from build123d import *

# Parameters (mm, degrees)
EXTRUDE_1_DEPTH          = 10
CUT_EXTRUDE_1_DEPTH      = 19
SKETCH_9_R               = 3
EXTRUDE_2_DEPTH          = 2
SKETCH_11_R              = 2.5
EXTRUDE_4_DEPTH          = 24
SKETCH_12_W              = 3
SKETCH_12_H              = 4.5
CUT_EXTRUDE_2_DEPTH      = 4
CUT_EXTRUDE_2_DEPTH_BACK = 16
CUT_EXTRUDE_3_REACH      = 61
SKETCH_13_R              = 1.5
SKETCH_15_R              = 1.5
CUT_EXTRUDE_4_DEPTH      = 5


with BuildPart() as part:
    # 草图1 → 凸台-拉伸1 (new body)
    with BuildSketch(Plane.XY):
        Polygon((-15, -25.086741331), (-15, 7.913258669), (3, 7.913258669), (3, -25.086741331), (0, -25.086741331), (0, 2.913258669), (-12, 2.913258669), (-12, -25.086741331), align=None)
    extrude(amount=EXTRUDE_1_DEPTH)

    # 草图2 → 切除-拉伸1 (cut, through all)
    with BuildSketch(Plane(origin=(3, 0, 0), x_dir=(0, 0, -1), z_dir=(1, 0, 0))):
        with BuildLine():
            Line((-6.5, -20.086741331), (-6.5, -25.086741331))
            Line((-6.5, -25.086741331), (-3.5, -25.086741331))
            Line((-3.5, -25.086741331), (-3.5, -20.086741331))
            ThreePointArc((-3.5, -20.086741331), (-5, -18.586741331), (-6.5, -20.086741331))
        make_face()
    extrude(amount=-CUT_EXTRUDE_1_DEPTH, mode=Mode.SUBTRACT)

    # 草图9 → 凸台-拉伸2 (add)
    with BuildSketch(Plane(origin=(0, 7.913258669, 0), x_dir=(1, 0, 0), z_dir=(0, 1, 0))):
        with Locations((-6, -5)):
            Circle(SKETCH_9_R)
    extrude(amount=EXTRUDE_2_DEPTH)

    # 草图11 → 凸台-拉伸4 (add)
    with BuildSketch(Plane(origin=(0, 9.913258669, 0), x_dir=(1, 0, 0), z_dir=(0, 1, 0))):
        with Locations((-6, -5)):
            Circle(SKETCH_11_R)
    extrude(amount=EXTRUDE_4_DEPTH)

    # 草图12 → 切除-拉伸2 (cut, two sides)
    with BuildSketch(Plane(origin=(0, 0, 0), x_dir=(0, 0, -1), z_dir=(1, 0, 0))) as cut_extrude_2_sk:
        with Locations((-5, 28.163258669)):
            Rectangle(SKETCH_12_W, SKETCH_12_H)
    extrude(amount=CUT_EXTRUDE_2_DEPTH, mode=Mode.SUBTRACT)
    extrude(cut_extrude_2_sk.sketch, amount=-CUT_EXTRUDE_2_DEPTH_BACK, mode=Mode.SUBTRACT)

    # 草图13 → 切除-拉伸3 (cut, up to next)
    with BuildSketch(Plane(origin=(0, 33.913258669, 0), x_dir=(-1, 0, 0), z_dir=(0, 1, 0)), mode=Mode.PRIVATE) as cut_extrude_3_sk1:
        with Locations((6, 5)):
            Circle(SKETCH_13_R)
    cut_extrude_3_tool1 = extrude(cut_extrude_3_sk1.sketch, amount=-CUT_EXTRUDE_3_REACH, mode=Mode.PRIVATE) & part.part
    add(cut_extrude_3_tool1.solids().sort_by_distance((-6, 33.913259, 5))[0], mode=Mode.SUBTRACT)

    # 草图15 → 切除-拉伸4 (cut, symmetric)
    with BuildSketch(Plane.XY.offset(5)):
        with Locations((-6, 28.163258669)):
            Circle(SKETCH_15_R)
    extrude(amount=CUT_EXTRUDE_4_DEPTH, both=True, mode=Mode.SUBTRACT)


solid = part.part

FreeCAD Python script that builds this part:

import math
import FreeCAD as App
import Part
import Sketcher

V = App.Vector
Q = App.Units.Quantity

doc = App.newDocument("Part")
body = doc.addObject("PartDesign::Body", "Body")

# Sketch on XY plane
sketch1 = doc.addObject("Sketcher::SketchObject", "Sketch")
body.addObject(sketch1)
sketch1.AttachmentSupport = (doc.XY_Plane, [""])
sketch1.MapMode = "FlatFace"
sketch1.addGeometry(Part.LineSegment(V(-15, 7.9, 0), V(-15, -25.1, 0)), False)
sketch1.addGeometry(Part.LineSegment(V(-15, -25.1, 0), V(-12, -25.1, 0)), False)
sketch1.addGeometry(Part.LineSegment(V(-12, -25.1, 0), V(-12, 2.9, 0)), False)
sketch1.addGeometry(Part.LineSegment(V(-12, 2.9, 0), V(0, 2.9, 0)), False)
sketch1.addGeometry(Part.LineSegment(V(0, 2.9, 0), V(0, -25.1, 0)), False)
sketch1.addGeometry(Part.LineSegment(V(0, -25.1, 0), V(3, -25.1, 0)), False)
sketch1.addGeometry(Part.LineSegment(V(3, -25.1, 0), V(3, 7.9, 0)), False)
sketch1.addGeometry(Part.LineSegment(V(3, 7.9, 0), V(-15, 7.9, 0)), False)
sketch1.addConstraint(Sketcher.Constraint("Coincident", 0, 2, 1, 1))
sketch1.addConstraint(Sketcher.Constraint("Coincident", 1, 2, 2, 1))
sketch1.addConstraint(Sketcher.Constraint("Coincident", 2, 2, 3, 1))
sketch1.addConstraint(Sketcher.Constraint("Coincident", 3, 2, 4, 1))
sketch1.addConstraint(Sketcher.Constraint("Coincident", 4, 2, 5, 1))
sketch1.addConstraint(Sketcher.Constraint("Coincident", 5, 2, 6, 1))
sketch1.addConstraint(Sketcher.Constraint("Coincident", 6, 2, 7, 1))
sketch1.addConstraint(Sketcher.Constraint("Coincident", 7, 2, 0, 1))
sketch1.addConstraint(Sketcher.Constraint("Vertical", 0))
sketch1.addConstraint(Sketcher.Constraint("Horizontal", 1))
sketch1.addConstraint(Sketcher.Constraint("Vertical", 2))
sketch1.addConstraint(Sketcher.Constraint("Horizontal", 3))
sketch1.addConstraint(Sketcher.Constraint("Vertical", 4))
sketch1.addConstraint(Sketcher.Constraint("Horizontal", 5))
sketch1.addConstraint(Sketcher.Constraint("Vertical", 6))
sketch1.addConstraint(Sketcher.Constraint("Horizontal", 7))
sketch1.addConstraint(Sketcher.Constraint("PointOnObject", 3, 2, -2))
sketch1.addConstraint(Sketcher.Constraint("Horizontal", 1, 2, 4, 2))
sketch1.addConstraint(Sketcher.Constraint("Equal", 1, 5))
sketch1.addConstraint(Sketcher.Constraint("DistanceX", 1, 1, 1, 2, Q("3 mm")))
sketch1.addConstraint(Sketcher.Constraint("DistanceX", 3, 1, 3, 2, Q("12 mm")))
sketch1.addConstraint(Sketcher.Constraint("DistanceY", 0, 2, 0, 1, Q("33 mm")))
sketch1.addConstraint(Sketcher.Constraint("DistanceY", 2, 1, 2, 2, Q("28 mm")))
sketch1.addConstraint(Sketcher.Constraint("DistanceY", 0, 2, -1, 1, Q("25.086741 mm")))
pad1 = doc.addObject("PartDesign::Pad", "Pad")
body.addObject(pad1)
pad1.Profile = sketch1
pad1.Length = 10

# Sketch on YZ plane
sketch2 = doc.addObject("Sketcher::SketchObject", "Sketch001")
body.addObject(sketch2)
sketch2.AttachmentSupport = (doc.YZ_Plane, [""])
sketch2.MapMode = "FlatFace"
sketch2.AttachmentOffset = App.Placement(V(0, 0, 3), App.Rotation())
sketch2.addGeometry(Part.LineSegment(V(-20.1, 6.5, 0), V(-25.1, 6.5, 0)), False)
sketch2.addGeometry(Part.LineSegment(V(-25.1, 6.5, 0), V(-25.1, 3.5, 0)), False)
sketch2.addGeometry(Part.LineSegment(V(-25.1, 3.5, 0), V(-20.1, 3.5, 0)), False)
sketch2.addGeometry(Part.ArcOfCircle(Part.Circle(V(-20.1, 5, 0), V(0, 0, 1), 1.5), math.radians(-90), math.radians(90)), False)
sketch2.addConstraint(Sketcher.Constraint("Coincident", 0, 2, 1, 1))
sketch2.addConstraint(Sketcher.Constraint("Coincident", 1, 2, 2, 1))
sketch2.addConstraint(Sketcher.Constraint("Tangent", 2, 2, 3, 1))
sketch2.addConstraint(Sketcher.Constraint("Tangent", 3, 2, 0, 1))
sketch2.addConstraint(Sketcher.Constraint("Horizontal", 0))
sketch2.addConstraint(Sketcher.Constraint("Vertical", 1))
sketch2.addConstraint(Sketcher.Constraint("Horizontal", 2))
sketch2.addConstraint(Sketcher.Constraint("Radius", 3, Q("1.5 mm")))
sketch2.addConstraint(Sketcher.Constraint("DistanceX", 0, 2, 0, 1, Q("5 mm")))
sketch2.addConstraint(Sketcher.Constraint("DistanceY", -1, 1, 3, 3, Q("5 mm")))
sketch2.addConstraint(Sketcher.Constraint("DistanceX", 3, 3, -1, 1, Q("20.086741 mm")))
pocket1 = doc.addObject("PartDesign::Pocket", "Pocket")
body.addObject(pocket1)
pocket1.Profile = sketch2
pocket1.Type = "ThroughAll"

# Sketch on XZ plane
sketch3 = doc.addObject("Sketcher::SketchObject", "Sketch002")
body.addObject(sketch3)
sketch3.AttachmentSupport = (doc.XZ_Plane, [""])
sketch3.MapMode = "FlatFace"
sketch3.AttachmentOffset = App.Placement(V(0, 0, -7.913259), App.Rotation())
sketch3.addGeometry(Part.Circle(V(-6, 5, 0), V(0, 0, 1), 3), False)
sketch3.addConstraint(Sketcher.Constraint("Diameter", 0, Q("6 mm")))
sketch3.addConstraint(Sketcher.Constraint("DistanceX", 0, 3, -1, 1, Q("6 mm")))
sketch3.addConstraint(Sketcher.Constraint("DistanceY", -1, 1, 0, 3, Q("5 mm")))
pad2 = doc.addObject("PartDesign::Pad", "Pad001")
body.addObject(pad2)
pad2.Profile = sketch3
pad2.Length = 2
pad2.Reversed = True

# Sketch on XZ plane
sketch4 = doc.addObject("Sketcher::SketchObject", "Sketch003")
body.addObject(sketch4)
sketch4.AttachmentSupport = (doc.XZ_Plane, [""])
sketch4.MapMode = "FlatFace"
sketch4.AttachmentOffset = App.Placement(V(0, 0, -9.913259), App.Rotation())
sketch4.addGeometry(Part.Circle(V(-6, 5, 0), V(0, 0, 1), 2.5), False)
sketch4.addConstraint(Sketcher.Constraint("Diameter", 0, Q("5 mm")))
sketch4.addConstraint(Sketcher.Constraint("DistanceX", 0, 3, -1, 1, Q("6 mm")))
sketch4.addConstraint(Sketcher.Constraint("DistanceY", -1, 1, 0, 3, Q("5 mm")))
pad3 = doc.addObject("PartDesign::Pad", "Pad002")
body.addObject(pad3)
pad3.Profile = sketch4
pad3.Length = 24
pad3.Reversed = True

# Sketch on YZ plane
sketch5 = doc.addObject("Sketcher::SketchObject", "Sketch004")
body.addObject(sketch5)
sketch5.AttachmentSupport = (doc.YZ_Plane, [""])
sketch5.MapMode = "FlatFace"
sketch5.addGeometry(Part.LineSegment(V(30.4, 6.5, 0), V(25.9, 6.5, 0)), False)
sketch5.addGeometry(Part.LineSegment(V(25.9, 6.5, 0), V(25.9, 3.5, 0)), False)
sketch5.addGeometry(Part.LineSegment(V(25.9, 3.5, 0), V(30.4, 3.5, 0)), False)
sketch5.addGeometry(Part.LineSegment(V(30.4, 3.5, 0), V(30.4, 6.5, 0)), False)
sketch5.addConstraint(Sketcher.Constraint("Coincident", 0, 2, 1, 1))
sketch5.addConstraint(Sketcher.Constraint("Coincident", 1, 2, 2, 1))
sketch5.addConstraint(Sketcher.Constraint("Coincident", 2, 2, 3, 1))
sketch5.addConstraint(Sketcher.Constraint("Coincident", 3, 2, 0, 1))
sketch5.addConstraint(Sketcher.Constraint("Horizontal", 0))
sketch5.addConstraint(Sketcher.Constraint("Vertical", 1))
sketch5.addConstraint(Sketcher.Constraint("Horizontal", 2))
sketch5.addConstraint(Sketcher.Constraint("Vertical", 3))
sketch5.addConstraint(Sketcher.Constraint("DistanceY", 1, 2, 1, 1, Q("3 mm")))
sketch5.addConstraint(Sketcher.Constraint("DistanceX", 0, 2, 0, 1, Q("4.5 mm")))
sketch5.addConstraint(Sketcher.Constraint("DistanceY", -1, 1, 0, 2, Q("6.5 mm")))
sketch5.addConstraint(Sketcher.Constraint("DistanceX", -1, 1, 0, 2, Q("25.913259 mm")))
pocket2 = doc.addObject("PartDesign::Pocket", "Pocket001")
body.addObject(pocket2)
pocket2.Profile = sketch5
pocket2.Type = "ThroughAll"
pocket2.Midplane = True

# Sketch on XZ plane
sketch6 = doc.addObject("Sketcher::SketchObject", "Sketch005")
body.addObject(sketch6)
sketch6.AttachmentSupport = (doc.XZ_Plane, [""])
sketch6.MapMode = "FlatFace"
sketch6.AttachmentOffset = App.Placement(V(0, 0, -33.913259), App.Rotation())
sketch6.addGeometry(Part.Circle(V(-6, 5, 0), V(0, 0, 1), 1.5), False)
sketch6.addConstraint(Sketcher.Constraint("Diameter", 0, Q("3 mm")))
sketch6.addConstraint(Sketcher.Constraint("DistanceX", 0, 3, -1, 1, Q("6 mm")))
sketch6.addConstraint(Sketcher.Constraint("DistanceY", -1, 1, 0, 3, Q("5 mm")))
pocket3 = doc.addObject("PartDesign::Pocket", "Pocket002")
body.addObject(pocket3)
pocket3.Profile = sketch6
pocket3.Type = "UpToFirst"
pocket3.Reversed = True

# Sketch on XY plane
sketch7 = doc.addObject("Sketcher::SketchObject", "Sketch006")
body.addObject(sketch7)
sketch7.AttachmentSupport = (doc.XY_Plane, [""])
sketch7.MapMode = "FlatFace"
sketch7.AttachmentOffset = App.Placement(V(0, 0, 5), App.Rotation())
sketch7.addGeometry(Part.Circle(V(-6, 28.2, 0), V(0, 0, 1), 1.5), False)
sketch7.addConstraint(Sketcher.Constraint("Diameter", 0, Q("3 mm")))
sketch7.addConstraint(Sketcher.Constraint("DistanceX", 0, 3, -1, 1, Q("6 mm")))
sketch7.addConstraint(Sketcher.Constraint("DistanceY", -1, 1, 0, 3, Q("28.163259 mm")))
pocket4 = doc.addObject("PartDesign::Pocket", "Pocket003")
body.addObject(pocket4)
pocket4.Profile = sketch7
pocket4.Length = 10
pocket4.Midplane = True

doc.recompute()
